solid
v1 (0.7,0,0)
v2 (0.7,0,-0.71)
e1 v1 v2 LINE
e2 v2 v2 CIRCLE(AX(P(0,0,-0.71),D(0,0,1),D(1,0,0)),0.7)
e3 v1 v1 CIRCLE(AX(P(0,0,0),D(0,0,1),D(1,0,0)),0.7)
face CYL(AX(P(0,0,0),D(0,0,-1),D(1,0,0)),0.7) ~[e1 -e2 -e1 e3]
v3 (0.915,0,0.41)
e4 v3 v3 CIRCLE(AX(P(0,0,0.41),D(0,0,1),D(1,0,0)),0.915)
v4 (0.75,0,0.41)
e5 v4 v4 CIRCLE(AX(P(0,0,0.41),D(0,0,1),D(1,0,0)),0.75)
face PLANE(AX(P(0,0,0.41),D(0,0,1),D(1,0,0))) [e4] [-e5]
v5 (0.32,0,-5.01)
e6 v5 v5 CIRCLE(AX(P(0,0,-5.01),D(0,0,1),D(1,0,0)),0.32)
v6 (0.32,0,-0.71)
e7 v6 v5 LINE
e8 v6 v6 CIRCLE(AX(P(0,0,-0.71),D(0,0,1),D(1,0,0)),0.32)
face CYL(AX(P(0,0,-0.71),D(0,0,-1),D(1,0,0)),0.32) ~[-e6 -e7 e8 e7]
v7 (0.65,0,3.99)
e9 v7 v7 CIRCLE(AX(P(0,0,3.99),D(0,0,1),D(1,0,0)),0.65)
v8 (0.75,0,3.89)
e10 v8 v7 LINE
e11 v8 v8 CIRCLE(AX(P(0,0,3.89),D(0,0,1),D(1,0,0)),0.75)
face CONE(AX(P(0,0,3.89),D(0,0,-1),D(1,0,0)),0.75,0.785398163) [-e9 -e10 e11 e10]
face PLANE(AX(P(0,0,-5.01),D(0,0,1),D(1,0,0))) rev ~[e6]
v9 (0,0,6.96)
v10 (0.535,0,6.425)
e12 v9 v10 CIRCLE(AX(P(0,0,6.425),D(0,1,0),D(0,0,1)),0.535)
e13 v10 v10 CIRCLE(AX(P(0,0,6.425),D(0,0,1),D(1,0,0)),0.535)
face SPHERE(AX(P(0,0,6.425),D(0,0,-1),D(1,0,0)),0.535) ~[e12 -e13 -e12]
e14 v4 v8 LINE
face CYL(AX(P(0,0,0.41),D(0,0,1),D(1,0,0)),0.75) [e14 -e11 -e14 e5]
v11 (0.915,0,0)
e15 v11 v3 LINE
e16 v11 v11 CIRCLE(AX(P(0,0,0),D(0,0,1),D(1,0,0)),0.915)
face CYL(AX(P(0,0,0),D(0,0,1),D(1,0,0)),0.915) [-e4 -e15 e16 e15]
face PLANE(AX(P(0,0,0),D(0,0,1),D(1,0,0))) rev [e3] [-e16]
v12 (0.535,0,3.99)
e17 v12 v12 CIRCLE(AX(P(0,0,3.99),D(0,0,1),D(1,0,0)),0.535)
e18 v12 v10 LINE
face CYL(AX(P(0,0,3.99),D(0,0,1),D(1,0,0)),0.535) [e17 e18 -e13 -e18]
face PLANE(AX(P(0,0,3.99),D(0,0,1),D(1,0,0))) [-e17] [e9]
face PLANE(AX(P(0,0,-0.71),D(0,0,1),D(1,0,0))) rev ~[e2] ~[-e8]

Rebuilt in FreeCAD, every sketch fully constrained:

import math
import FreeCAD as App
import Part
import Sketcher
from FreeCAD import Vector
Q = App.Units.Quantity


def edges_at(feature, points):
    """Names of the edges that pass closest to the given points."""
    edges = feature.Shape.Edges
    near = lambda p: min(range(len(edges)), key=lambda i: edges[i].distToShape(Part.Vertex(*p))[0])
    return sorted({f"Edge{near(p) + 1}" for p in points})

doc = App.newDocument("Part")
body = doc.addObject("PartDesign::Body", "Body")

# Sketch on XZ plane
sketch1 = doc.addObject("Sketcher::SketchObject", "Sketch")
body.addObject(sketch1)
sketch1.AttachmentSupport = (doc.XZ_Plane, [""])
sketch1.MapMode = "FlatFace"
sketch1.addGeometry([
    Part.LineSegment(Vector(0.32, -5.01, 0), Vector(0, -5.01, 0)),  # 0
    Part.LineSegment(Vector(0, -5.01, 0), Vector(0, 6.96, 0)),  # 1
    Part.ArcOfCircle(Part.Circle(Vector(0, 6.42, 0), Vector(0, 0, 1), 0.54), math.radians(0), math.radians(90)),  # 2
    Part.LineSegment(Vector(0.54, 6.42, 0), Vector(0.54, 3.99, 0)),  # 3
    Part.LineSegment(Vector(0.54, 3.99, 0), Vector(0.75, 3.99, 0)),  # 4
    Part.LineSegment(Vector(0.75, 3.99, 0), Vector(0.75, 0.41, 0)),  # 5
    Part.LineSegment(Vector(0.75, 0.41, 0), Vector(0.92, 0.41, 0)),  # 6
    Part.LineSegment(Vector(0.92, 0.41, 0), Vector(0.92, 0, 0)),  # 7
    Part.LineSegment(Vector(0.92, 0, 0), Vector(0.7, 0, 0)),  # 8
    Part.LineSegment(Vector(0.7, 0, 0), Vector(0.7, -0.71, 0)),  # 9
    Part.LineSegment(Vector(0.7, -0.71, 0), Vector(0.32, -0.71, 0)),  # 10
    Part.LineSegment(Vector(0.32, -0.71, 0), Vector(0.32, -5.01, 0)),  # 11
], False)
sketch1.addConstraint([
    Sketcher.Constraint("Coincident", 0, 2, 1, 1),
    Sketcher.Constraint("Coincident", 1, 2, 2, 2),
    Sketcher.Constraint("Tangent", 2, 1, 3, 1),
    Sketcher.Constraint("Coincident", 3, 2, 4, 1),
    Sketcher.Constraint("Coincident", 4, 2, 5, 1),
    Sketcher.Constraint("Coincident", 5, 2, 6, 1),
    Sketcher.Constraint("Coincident", 6, 2, 7, 1),
    Sketcher.Constraint("Coincident", 7, 2, 8, 1),
    Sketcher.Constraint("Coincident", 8, 2, 9, 1),
    Sketcher.Constraint("Coincident", 9, 2, 10, 1),
    Sketcher.Constraint("Coincident", 10, 2, 11, 1),
    Sketcher.Constraint("Coincident", 11, 2, 0, 1),
    Sketcher.Constraint("Horizontal", 0),
    Sketcher.Constraint("Vertical", 1),
    Sketcher.Constraint("Vertical", 3),
    Sketcher.Constraint("Horizontal", 4),
    Sketcher.Constraint("Vertical", 5),
    Sketcher.Constraint("Horizontal", 6),
    Sketcher.Constraint("Vertical", 7),
    Sketcher.Constraint("Horizontal", 8),
    Sketcher.Constraint("Vertical", 9),
    Sketcher.Constraint("Horizontal", 10),
    Sketcher.Constraint("Vertical", 11),
    Sketcher.Constraint("PointOnObject", 2, 3, -2),
    Sketcher.Constraint("PointOnObject", 0, 2, -2),
    Sketcher.Constraint("PointOnObject", 7, 2, -1),
    Sketcher.Constraint("Equal", 4, 8),
    Sketcher.Constraint("DistanceY", 11, 2, 11, 1, Q("4.3 mm")),
    Sketcher.Constraint("Radius", 2, Q("0.535 mm")),
    Sketcher.Constraint("DistanceY", 7, 2, 7, 1, Q("0.41 mm")),
    Sketcher.Constraint("DistanceY", 9, 2, 9, 1, Q("0.71 mm")),
    Sketcher.Constraint("DistanceX", -1, 1, 8, 2, Q("0.7 mm")),
    Sketcher.Constraint("DistanceY", -1, 1, 1, 2, Q("6.96 mm")),
    Sketcher.Constraint("DistanceY", 0, 2, 3, 2, Q("9 mm")),
    Sketcher.Constraint("DistanceX", 0, 2, 0, 1, Q("0.32 mm")),
    Sketcher.Constraint("DistanceX", 4, 1, 4, 2, Q("0.215 mm")),
])
revolution = doc.addObject("PartDesign::Revolution", "Revolution")
body.addObject(revolution)
revolution.Profile = sketch1
revolution.ReferenceAxis = (sketch1, ["V_Axis"])
revolution.Angle = 360
doc.recompute()

chamfer = doc.addObject("PartDesign::Chamfer", "Chamfer")
body.addObject(chamfer)
chamfer.Base = (revolution, edges_at(revolution, [(-0.75, 0, 3.99)]))
chamfer.Size = 0.1

doc.recompute()
